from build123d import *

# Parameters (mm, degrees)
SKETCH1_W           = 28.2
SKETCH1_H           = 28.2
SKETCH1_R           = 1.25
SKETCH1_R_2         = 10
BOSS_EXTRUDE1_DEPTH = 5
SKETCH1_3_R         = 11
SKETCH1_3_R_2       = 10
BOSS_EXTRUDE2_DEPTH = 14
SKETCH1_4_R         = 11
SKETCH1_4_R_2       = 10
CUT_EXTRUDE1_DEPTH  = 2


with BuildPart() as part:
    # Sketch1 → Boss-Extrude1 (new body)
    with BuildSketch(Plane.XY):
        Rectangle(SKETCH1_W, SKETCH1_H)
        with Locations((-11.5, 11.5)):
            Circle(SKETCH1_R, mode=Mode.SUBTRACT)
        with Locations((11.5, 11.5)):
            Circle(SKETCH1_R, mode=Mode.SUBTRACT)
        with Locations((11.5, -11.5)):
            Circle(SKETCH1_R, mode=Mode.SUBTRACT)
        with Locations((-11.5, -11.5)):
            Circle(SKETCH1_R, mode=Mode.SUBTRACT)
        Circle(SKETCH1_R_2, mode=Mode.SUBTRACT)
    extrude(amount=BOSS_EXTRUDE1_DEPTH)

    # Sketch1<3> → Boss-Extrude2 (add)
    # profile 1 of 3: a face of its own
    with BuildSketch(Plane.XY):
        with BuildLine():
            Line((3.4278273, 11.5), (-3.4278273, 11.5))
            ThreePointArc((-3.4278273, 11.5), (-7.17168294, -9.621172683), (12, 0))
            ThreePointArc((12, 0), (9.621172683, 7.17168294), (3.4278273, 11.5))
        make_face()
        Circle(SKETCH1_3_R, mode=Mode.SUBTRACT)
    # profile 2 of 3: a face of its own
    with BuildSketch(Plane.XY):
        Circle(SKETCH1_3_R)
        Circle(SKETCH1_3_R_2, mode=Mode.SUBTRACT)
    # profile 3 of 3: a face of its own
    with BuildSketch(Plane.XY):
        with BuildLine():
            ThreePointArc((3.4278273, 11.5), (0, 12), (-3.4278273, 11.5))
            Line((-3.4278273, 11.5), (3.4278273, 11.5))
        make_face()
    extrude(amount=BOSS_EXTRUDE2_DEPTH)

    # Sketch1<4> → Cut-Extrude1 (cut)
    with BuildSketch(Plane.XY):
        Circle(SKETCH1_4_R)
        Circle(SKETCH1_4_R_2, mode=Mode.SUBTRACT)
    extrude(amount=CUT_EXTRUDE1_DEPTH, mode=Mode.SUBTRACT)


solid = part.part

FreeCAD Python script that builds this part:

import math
import FreeCAD as App
import Part
import Sketcher
from FreeCAD import Vector
Q = App.Units.Quantity

doc = App.newDocument("Part")
body = doc.addObject("PartDesign::Body", "Body")

# Sketch on XY plane
sketch1 = doc.addObject("Sketcher::SketchObject", "Sketch")
body.addObject(sketch1)
sketch1.AttachmentSupport = (doc.XY_Plane, [""])
sketch1.MapMode = "FlatFace"
sketch1.addGeometry(Part.LineSegment(Vector(-14.1, 14.1, 0), Vector(-14.1, -14.1, 0)), False)
sketch1.addGeometry(Part.LineSegment(Vector(-14.1, -14.1, 0), Vector(14.1, -14.1, 0)), False)
sketch1.addGeometry(Part.LineSegment(Vector(14.1, -14.1, 0), Vector(14.1, 14.1, 0)), False)
sketch1.addGeometry(Part.LineSegment(Vector(14.1, 14.1, 0), Vector(-14.1, 14.1, 0)), False)
sketch1.addGeometry(Part.Circle(Vector(-11.5, -11.5, 0), Vector(0, 0, 1), 1.25), False)
sketch1.addGeometry(Part.Circle(Vector(11.5, -11.5, 0), Vector(0, 0, 1), 1.25), False)
sketch1.addGeometry(Part.Circle(Vector(-11.5, 11.5, 0), Vector(0, 0, 1), 1.25), False)
sketch1.addGeometry(Part.Circle(Vector(0, 0, 0), Vector(0, 0, 1), 10), False)
sketch1.addGeometry(Part.Circle(Vector(11.5, 11.5, 0), Vector(0, 0, 1), 1.25), False)
sketch1.addConstraint(Sketcher.Constraint("Coincident", 0, 2, 1, 1))
sketch1.addConstraint(Sketcher.Constraint("Coincident", 1, 2, 2, 1))
sketch1.addConstraint(Sketcher.Constraint("Coincident", 2, 2, 3, 1))
sketch1.addConstraint(Sketcher.Constraint("Coincident", 3, 2, 0, 1))
sketch1.addConstraint(Sketcher.Constraint("Vertical", 0))
sketch1.addConstraint(Sketcher.Constraint("Horizontal", 1))
sketch1.addConstraint(Sketcher.Constraint("Vertical", 2))
sketch1.addConstraint(Sketcher.Constraint("Horizontal", 3))
sketch1.addConstraint(Sketcher.Constraint("Coincident", 7, 3, -1, 1))
sketch1.addConstraint(Sketcher.Constraint("Equal", 4, 5))
sketch1.addConstraint(Sketcher.Constraint("Equal", 5, 6))
sketch1.addConstraint(Sketcher.Constraint("Equal", 6, 8))
sketch1.addConstraint(Sketcher.Constraint("Symmetric", 5, 3, 6, 3, -1, 1))
sketch1.addConstraint(Sketcher.Constraint("Symmetric", 4, 3, 8, 3, -1, 1))
sketch1.addConstraint(Sketcher.Constraint("Symmetric", 0, 2, 2, 2, -1, 1))
sketch1.addConstraint(Sketcher.Constraint("Symmetric", 4, 3, 5, 3, -2))
sketch1.addConstraint(Sketcher.Constraint("Equal", 3, 0))
sketch1.addConstraint(Sketcher.Constraint("Diameter", 7, Q("20 mm")))
sketch1.addConstraint(Sketcher.Constraint("Diameter", 4, Q("2.5 mm")))
sketch1.addConstraint(Sketcher.Constraint("DistanceX", 1, 1, 1, 2, Q("28.2 mm")))
sketch1.addConstraint(Sketcher.Constraint("DistanceX", 4, 3, 5, 3, Q("23 mm")))
sketch1.addConstraint(Sketcher.Constraint("DistanceY", 4, 3, 6, 3, Q("23 mm")))
pad1 = doc.addObject("PartDesign::Pad", "Pad")
body.addObject(pad1)
pad1.Profile = sketch1
pad1.Length = 5

# Sketch on XY plane
sketch2 = doc.addObject("Sketcher::SketchObject", "Sketch001")
body.addObject(sketch2)
sketch2.AttachmentSupport = (doc.XY_Plane, [""])
sketch2.MapMode = "FlatFace"
sketch2.addGeometry(Part.ArcOfCircle(Part.Circle(Vector(0, 0, 0), Vector(0, 0, 1), 12), math.radians(0), math.radians(73.402158)), False)
sketch2.addGeometry(Part.ArcOfCircle(Part.Circle(Vector(0, 0, 0), Vector(0, 0, 1), 12), math.radians(73.402158), math.radians(106.597842)), False)
sketch2.addGeometry(Part.ArcOfCircle(Part.Circle(Vector(0, 0, 0), Vector(0, 0, 1), 12), math.radians(106.597842), math.radians(360)), False)
sketch2.addGeometry(Part.Circle(Vector(0, 0, 0), Vector(0, 0, 1), 10), False)
sketch2.addConstraint(Sketcher.Constraint("Tangent", 0, 2, 1, 1))
sketch2.addConstraint(Sketcher.Constraint("Tangent", 1, 2, 2, 1))
sketch2.addConstraint(Sketcher.Constraint("Tangent", 2, 2, 0, 1))
sketch2.addConstraint(Sketcher.Constraint("Coincident", 0, 3, -1, 1))
sketch2.addConstraint(Sketcher.Constraint("Coincident", 3, 3, -1, 1))
sketch2.addConstraint(Sketcher.Constraint("PointOnObject", 2, 2, -1))
sketch2.addConstraint(Sketcher.Constraint("Horizontal", 0, 2, 1, 2))
sketch2.addConstraint(Sketcher.Constraint("Diameter", 3, Q("20 mm")))
sketch2.addConstraint(Sketcher.Constraint("Radius", 0, Q("12 mm")))
sketch2.addConstraint(Sketcher.Constraint("DistanceY", -1, 1, 0, 2, Q("11.5 mm")))
pad2 = doc.addObject("PartDesign::Pad", "Pad001")
body.addObject(pad2)
pad2.Profile = sketch2
pad2.Length = 14

# Sketch on XY plane
sketch3 = doc.addObject("Sketcher::SketchObject", "Sketch002")
body.addObject(sketch3)
sketch3.AttachmentSupport = (doc.XY_Plane, [""])
sketch3.MapMode = "FlatFace"
sketch3.addGeometry(Part.Circle(Vector(0, 0, 0), Vector(0, 0, 1), 11), False)
sketch3.addGeometry(Part.Circle(Vector(0, 0, 0), Vector(0, 0, 1), 10), False)
sketch3.addConstraint(Sketcher.Constraint("Coincident", 0, 3, -1, 1))
sketch3.addConstraint(Sketcher.Constraint("Coincident", 1, 3, -1, 1))
sketch3.addConstraint(Sketcher.Constraint("Diameter", 0, Q("22 mm")))
sketch3.addConstraint(Sketcher.Constraint("Diameter", 1, Q("20 mm")))
pocket1 = doc.addObject("PartDesign::Pocket", "Pocket")
body.addObject(pocket1)
pocket1.Profile = sketch3
pocket1.Length = 2
pocket1.Reversed = True

doc.recompute()
